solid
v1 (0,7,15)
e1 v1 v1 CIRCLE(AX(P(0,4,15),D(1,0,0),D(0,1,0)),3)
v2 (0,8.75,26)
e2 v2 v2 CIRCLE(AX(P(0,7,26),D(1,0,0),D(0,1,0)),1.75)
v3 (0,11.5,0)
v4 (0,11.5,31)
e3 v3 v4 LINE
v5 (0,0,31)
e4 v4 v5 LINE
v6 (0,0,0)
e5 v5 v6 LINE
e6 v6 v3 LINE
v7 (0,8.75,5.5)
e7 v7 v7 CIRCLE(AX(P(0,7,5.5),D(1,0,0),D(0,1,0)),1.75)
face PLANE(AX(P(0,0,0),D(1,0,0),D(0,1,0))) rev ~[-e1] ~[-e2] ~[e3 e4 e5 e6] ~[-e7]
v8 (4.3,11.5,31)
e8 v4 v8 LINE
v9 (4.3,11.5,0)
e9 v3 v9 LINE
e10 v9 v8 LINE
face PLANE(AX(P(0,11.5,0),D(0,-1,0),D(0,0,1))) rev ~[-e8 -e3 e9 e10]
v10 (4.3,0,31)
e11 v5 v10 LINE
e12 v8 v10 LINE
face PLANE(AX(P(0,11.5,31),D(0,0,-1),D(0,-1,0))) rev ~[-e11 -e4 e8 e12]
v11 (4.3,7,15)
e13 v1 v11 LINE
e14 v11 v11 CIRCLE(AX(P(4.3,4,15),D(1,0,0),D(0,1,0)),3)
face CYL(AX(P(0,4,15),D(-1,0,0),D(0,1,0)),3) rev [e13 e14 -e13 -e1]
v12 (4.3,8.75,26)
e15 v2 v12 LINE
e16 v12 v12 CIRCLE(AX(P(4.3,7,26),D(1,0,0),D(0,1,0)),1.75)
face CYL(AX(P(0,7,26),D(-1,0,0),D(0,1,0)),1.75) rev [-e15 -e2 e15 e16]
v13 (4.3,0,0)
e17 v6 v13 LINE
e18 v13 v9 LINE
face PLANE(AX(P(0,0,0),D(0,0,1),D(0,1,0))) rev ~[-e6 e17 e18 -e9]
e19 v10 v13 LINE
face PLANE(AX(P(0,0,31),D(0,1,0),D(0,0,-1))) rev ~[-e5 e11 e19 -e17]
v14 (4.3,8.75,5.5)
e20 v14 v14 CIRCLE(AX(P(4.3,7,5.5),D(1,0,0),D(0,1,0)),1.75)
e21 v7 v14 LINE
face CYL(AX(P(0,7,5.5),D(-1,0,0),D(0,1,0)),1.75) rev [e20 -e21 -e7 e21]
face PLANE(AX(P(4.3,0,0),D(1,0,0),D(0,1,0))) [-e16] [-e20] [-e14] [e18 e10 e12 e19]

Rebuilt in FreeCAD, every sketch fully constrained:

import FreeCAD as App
import Part
import Sketcher

V = App.Vector


def add_polygon(sketch, points):
    """Adds a closed chain of lines whose ends are joined by coincident constraints."""
    first, n = sketch.GeometryCount, len(points)
    for a, b in zip(points, points[1:] + points[:1]):
        sketch.addGeometry(Part.LineSegment(App.Vector(*a, 0), App.Vector(*b, 0)), False)
    for i in range(n):
        sketch.addConstraint(Sketcher.Constraint("Coincident", first + i, 2, first + (i + 1) % n, 1))

doc = App.newDocument("Part")
params = doc.addObject("Spreadsheet::Sheet", "Params")
for row, (alias, value) in enumerate([
    ("sketch1_diameter", "6 mm"),
    ("sketch1_diameter2", "3.5 mm"),
    ("sketch1_width", "11.5 mm"),
    ("pad1_length", "4.3 mm"),
], start=1):
    params.set(f"A{row}", alias)
    params.set(f"B{row}", "=" + value)
    params.setAlias(f"B{row}", alias)

body = doc.addObject("PartDesign::Body", "Body")

sketch1 = body.newObject("Sketcher::SketchObject", "Sketch")
sketch1.AttachmentSupport = (doc.getObject("YZ_Plane"), [""])
sketch1.MapMode = "FlatFace"
add_polygon(sketch1, [(0, 31), (0, 0), (11.5, 0), (11.5, 31)])
sketch1.addGeometry(Part.Circle(V(4, 15, 0), V(0, 0, 1), 3), False)
sketch1.addGeometry(Part.Circle(V(7, 5.5, 0), V(0, 0, 1), 1.8), False)
sketch1.addGeometry(Part.Circle(V(7, 26, 0), V(0, 0, 1), 1.8), False)
sketch1.addConstraint([
    Sketcher.Constraint("Vertical", 0),
    Sketcher.Constraint("Horizontal", 1),
    Sketcher.Constraint("Vertical", 2),
    Sketcher.Constraint("Horizontal", 3),
    Sketcher.Constraint("Coincident", 0, 2, -1, 1),
    Sketcher.Constraint("Equal", 5, 6),
    Sketcher.Constraint("Vertical", 5, 3, 6, 3),
    Sketcher.Constraint("Diameter", 4, 6.0),
    Sketcher.Constraint("Diameter", 5, 3.5),
    Sketcher.Constraint("DistanceX", 1, 1, 1, 2, 11.5),
    Sketcher.Constraint("DistanceX", -1, 1, 4, 3, 4.0),
    Sketcher.Constraint("DistanceY", -1, 1, 4, 3, 15.0),
    Sketcher.Constraint("DistanceX", -1, 1, 5, 3, 7.0),
    Sketcher.Constraint("DistanceY", 4, 3, 2, 2, 16.0),
    Sketcher.Constraint("DistanceY", 5, 3, 4, 3, 9.5),
    Sketcher.Constraint("DistanceY", 5, 3, 6, 3, 20.5),
])
sketch1.setExpression("Constraints[11]", "Params.sketch1_diameter")
sketch1.setExpression("Constraints[12]", "Params.sketch1_diameter2")
sketch1.setExpression("Constraints[13]", "Params.sketch1_width")
pad1 = body.newObject("PartDesign::Pad", "Pad")
pad1.Profile = sketch1
pad1.setExpression("Length", "Params.pad1_length")

doc.recompute()
